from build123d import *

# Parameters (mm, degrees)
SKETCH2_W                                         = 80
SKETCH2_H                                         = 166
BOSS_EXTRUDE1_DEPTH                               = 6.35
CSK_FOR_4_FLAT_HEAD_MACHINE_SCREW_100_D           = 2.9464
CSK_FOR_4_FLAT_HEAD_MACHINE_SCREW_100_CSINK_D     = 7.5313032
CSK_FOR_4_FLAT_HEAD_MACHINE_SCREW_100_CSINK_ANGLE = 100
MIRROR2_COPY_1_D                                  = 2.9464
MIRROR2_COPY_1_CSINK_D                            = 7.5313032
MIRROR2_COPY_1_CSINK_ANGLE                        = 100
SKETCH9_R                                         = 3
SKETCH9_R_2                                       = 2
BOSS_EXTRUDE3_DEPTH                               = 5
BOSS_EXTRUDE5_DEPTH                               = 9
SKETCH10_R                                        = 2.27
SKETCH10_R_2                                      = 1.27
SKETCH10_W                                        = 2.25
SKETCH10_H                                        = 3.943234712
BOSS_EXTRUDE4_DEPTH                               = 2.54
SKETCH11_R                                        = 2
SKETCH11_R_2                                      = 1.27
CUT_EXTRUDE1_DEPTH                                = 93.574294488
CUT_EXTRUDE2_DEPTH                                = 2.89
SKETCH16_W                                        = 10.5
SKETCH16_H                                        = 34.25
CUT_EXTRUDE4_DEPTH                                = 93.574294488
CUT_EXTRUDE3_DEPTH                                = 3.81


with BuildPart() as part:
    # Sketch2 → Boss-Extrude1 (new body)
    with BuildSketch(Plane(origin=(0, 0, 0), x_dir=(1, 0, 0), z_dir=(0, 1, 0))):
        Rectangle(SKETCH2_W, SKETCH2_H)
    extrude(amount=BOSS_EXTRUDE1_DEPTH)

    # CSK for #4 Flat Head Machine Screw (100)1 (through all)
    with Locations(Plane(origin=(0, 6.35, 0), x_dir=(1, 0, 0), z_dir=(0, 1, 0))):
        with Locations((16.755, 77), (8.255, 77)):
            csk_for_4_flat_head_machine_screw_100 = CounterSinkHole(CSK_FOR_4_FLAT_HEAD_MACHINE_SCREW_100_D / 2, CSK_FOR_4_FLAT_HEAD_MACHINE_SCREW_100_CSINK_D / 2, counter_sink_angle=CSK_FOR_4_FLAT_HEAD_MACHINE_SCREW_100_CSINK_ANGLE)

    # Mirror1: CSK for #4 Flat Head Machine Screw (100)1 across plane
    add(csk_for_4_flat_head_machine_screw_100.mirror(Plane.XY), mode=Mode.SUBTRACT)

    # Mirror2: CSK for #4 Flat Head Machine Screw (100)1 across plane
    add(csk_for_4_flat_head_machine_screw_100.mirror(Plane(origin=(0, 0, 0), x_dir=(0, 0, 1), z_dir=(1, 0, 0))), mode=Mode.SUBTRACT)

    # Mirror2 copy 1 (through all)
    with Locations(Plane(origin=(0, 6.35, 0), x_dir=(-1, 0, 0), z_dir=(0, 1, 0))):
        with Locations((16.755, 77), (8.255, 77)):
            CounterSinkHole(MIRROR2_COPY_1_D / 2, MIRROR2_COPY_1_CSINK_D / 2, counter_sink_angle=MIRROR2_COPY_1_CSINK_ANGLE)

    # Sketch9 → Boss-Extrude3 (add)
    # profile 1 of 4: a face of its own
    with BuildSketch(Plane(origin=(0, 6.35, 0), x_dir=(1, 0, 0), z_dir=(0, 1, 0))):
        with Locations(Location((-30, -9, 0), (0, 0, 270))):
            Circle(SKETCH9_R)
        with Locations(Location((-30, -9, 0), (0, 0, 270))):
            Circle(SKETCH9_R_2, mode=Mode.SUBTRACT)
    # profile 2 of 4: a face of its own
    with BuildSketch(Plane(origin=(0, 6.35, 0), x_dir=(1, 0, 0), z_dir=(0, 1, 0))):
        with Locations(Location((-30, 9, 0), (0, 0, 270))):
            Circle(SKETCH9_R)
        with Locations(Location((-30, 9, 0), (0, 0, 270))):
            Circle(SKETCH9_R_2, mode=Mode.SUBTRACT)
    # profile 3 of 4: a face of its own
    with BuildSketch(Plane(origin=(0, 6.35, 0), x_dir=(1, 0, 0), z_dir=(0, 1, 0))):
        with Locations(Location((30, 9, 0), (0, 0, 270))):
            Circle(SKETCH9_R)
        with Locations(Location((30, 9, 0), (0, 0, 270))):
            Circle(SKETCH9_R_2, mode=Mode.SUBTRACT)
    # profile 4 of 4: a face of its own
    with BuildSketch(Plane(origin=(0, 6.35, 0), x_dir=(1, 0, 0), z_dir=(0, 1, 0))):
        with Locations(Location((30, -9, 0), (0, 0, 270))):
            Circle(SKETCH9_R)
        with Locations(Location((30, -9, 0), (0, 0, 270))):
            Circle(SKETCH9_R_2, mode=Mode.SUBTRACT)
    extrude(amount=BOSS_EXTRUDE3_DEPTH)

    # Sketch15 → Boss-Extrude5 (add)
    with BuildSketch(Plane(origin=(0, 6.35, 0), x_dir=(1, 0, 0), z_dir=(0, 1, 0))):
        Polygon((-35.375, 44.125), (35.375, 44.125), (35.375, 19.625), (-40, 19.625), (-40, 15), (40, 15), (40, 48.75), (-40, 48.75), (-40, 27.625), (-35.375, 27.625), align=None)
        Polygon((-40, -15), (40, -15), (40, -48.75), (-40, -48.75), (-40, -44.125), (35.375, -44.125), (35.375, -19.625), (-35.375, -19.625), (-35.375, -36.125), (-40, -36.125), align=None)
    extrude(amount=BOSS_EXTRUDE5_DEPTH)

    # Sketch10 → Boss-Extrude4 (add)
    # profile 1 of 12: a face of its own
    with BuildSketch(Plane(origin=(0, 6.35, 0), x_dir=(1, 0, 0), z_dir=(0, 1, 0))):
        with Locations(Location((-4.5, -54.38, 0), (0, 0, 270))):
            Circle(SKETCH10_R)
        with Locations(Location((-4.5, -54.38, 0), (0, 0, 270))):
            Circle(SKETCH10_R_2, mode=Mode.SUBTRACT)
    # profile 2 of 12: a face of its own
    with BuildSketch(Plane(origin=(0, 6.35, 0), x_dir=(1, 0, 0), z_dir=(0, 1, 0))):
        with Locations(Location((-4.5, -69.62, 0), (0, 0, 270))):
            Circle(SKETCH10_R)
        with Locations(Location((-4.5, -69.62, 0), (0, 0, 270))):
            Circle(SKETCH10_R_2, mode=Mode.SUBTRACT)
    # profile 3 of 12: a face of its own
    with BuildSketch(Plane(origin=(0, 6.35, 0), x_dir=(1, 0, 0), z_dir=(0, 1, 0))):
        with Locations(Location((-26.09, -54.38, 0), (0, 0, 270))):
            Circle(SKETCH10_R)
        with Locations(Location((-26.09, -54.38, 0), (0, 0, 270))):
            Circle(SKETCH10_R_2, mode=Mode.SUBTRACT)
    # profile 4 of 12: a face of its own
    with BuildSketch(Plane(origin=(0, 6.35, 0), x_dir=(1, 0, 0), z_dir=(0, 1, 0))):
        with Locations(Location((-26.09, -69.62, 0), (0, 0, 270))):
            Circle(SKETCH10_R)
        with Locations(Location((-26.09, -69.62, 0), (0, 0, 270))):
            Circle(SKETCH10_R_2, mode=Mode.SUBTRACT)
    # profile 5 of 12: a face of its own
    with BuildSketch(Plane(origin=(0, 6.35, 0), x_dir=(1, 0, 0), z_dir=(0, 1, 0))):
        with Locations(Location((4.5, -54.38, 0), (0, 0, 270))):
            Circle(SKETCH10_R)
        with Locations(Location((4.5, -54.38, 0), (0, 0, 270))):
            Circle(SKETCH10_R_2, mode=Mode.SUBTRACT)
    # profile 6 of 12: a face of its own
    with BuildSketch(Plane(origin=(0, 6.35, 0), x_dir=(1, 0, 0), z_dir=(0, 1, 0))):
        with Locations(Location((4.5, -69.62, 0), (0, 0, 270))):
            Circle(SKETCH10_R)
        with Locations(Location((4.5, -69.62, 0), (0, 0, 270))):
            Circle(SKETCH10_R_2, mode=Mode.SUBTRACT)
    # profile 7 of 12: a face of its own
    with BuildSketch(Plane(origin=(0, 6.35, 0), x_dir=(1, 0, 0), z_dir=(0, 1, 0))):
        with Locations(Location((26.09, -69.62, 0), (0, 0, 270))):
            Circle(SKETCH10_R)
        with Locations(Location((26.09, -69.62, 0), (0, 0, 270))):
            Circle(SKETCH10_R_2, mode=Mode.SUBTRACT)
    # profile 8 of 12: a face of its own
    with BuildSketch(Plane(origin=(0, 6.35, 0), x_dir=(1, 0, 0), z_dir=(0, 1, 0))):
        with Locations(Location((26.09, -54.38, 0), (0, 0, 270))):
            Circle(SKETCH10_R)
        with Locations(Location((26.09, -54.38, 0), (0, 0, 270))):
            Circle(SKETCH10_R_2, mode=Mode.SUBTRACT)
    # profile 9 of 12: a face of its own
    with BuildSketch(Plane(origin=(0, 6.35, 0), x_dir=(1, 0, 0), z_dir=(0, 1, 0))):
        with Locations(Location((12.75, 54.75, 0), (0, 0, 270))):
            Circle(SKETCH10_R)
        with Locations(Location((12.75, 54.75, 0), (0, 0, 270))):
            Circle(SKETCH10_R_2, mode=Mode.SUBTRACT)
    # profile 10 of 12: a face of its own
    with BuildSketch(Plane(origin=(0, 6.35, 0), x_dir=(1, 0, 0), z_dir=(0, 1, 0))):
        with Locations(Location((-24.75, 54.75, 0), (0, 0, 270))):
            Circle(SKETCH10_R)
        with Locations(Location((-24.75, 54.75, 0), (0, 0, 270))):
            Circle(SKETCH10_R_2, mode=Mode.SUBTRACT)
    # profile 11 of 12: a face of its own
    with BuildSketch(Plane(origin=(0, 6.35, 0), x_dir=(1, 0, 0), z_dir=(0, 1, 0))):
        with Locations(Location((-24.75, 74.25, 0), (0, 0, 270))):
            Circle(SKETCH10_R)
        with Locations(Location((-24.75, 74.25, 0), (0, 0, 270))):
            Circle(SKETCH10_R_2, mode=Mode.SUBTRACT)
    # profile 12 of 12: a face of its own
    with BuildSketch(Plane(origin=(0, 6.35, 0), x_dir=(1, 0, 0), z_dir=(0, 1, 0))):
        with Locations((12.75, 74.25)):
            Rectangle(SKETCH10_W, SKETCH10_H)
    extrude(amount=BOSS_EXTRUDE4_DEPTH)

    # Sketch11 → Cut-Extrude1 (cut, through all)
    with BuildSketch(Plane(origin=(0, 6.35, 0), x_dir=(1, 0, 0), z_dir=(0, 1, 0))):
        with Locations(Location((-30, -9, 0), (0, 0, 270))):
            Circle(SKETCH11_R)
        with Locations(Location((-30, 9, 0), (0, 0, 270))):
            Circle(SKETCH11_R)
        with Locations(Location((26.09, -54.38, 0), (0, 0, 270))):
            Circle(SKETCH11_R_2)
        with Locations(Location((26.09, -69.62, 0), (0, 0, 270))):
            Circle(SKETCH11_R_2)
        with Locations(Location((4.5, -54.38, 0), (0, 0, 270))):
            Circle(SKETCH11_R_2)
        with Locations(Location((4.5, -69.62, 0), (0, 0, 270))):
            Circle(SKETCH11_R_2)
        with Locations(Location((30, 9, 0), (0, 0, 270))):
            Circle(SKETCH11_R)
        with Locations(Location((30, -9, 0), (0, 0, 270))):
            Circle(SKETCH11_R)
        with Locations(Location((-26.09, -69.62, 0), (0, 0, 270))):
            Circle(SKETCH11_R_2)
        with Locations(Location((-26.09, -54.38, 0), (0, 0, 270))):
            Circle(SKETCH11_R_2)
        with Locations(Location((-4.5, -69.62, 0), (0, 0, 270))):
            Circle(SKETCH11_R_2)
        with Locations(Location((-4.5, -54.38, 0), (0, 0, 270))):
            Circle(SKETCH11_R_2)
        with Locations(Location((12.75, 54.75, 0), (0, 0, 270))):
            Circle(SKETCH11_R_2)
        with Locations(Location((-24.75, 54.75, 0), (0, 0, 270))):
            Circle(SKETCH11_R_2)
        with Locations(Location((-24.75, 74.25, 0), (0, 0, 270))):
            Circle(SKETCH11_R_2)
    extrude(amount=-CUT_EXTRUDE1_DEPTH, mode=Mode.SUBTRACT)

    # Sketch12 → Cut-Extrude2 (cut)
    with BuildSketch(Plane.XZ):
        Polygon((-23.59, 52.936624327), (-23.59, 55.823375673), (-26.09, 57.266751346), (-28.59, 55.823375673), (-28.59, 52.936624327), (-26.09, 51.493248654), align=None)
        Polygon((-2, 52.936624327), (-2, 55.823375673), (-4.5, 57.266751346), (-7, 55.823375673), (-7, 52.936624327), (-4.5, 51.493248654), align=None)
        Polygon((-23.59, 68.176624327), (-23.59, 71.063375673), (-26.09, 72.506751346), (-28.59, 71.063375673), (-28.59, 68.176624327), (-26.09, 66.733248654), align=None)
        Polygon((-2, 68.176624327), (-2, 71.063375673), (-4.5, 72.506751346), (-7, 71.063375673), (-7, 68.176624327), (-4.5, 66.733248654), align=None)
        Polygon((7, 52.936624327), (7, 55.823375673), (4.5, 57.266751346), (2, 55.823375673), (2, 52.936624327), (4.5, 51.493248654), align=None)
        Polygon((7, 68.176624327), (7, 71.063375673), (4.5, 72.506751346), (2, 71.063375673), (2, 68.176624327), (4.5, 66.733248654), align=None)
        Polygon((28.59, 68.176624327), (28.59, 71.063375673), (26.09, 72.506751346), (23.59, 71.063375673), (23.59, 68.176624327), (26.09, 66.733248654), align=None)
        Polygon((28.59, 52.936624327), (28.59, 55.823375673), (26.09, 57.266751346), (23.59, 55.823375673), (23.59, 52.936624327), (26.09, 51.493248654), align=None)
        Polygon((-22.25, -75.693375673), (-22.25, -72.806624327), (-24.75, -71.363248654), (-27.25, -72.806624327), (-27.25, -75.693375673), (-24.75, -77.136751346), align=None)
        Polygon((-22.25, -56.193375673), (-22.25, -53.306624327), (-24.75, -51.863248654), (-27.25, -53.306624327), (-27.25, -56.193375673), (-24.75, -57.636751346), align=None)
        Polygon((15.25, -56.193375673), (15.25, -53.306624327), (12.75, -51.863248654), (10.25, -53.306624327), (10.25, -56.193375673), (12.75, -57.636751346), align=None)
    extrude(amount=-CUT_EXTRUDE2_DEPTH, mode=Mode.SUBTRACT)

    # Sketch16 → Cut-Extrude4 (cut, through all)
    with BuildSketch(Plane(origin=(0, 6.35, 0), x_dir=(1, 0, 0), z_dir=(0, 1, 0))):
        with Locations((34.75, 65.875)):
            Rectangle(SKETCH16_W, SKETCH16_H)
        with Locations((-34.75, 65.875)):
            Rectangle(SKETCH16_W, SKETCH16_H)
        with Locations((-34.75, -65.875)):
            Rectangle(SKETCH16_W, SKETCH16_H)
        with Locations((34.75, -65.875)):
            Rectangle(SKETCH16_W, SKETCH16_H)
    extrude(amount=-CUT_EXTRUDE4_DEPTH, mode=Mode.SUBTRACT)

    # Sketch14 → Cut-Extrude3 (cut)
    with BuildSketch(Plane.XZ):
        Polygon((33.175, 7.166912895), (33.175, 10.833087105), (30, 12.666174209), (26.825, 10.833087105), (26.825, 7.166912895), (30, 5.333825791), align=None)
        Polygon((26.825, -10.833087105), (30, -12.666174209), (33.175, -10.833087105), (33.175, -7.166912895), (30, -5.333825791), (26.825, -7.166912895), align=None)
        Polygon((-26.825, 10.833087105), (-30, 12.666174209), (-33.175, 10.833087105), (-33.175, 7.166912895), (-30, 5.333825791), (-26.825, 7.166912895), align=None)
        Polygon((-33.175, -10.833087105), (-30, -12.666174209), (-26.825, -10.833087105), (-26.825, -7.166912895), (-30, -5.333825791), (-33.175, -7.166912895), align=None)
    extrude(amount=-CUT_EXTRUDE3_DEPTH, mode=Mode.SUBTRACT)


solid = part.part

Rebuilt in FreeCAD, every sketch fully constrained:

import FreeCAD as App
import Part
import Sketcher
Q = App.Units.Quantity


def add_polygon(sketch, points):
    """Adds a closed chain of lines whose ends are joined by coincident constraints."""
    first, n = sketch.GeometryCount, len(points)
    for a, b in zip(points, points[1:] + points[:1]):
        sketch.addGeometry(Part.LineSegment(App.Vector(*a, 0), App.Vector(*b, 0)), False)
    for i in range(n):
        sketch.addConstraint(Sketcher.Constraint("Coincident", first + i, 2, first + (i + 1) % n, 1))

doc = App.newDocument("Part")
body = doc.addObject("PartDesign::Body", "Body")

# Sketch on XZ plane
sketch1 = body.newObject("Sketcher::SketchObject", "Sketch")
sketch1.AttachmentSupport = (doc.getObject("XZ_Plane"), [""])
sketch1.MapMode = "FlatFace"
add_polygon(sketch1, [(-40, -83), (-40, 83), (40, 83), (40, -83)])  # lines 0-3
sketch1.addConstraint([
    Sketcher.Constraint("Vertical", 0),
    Sketcher.Constraint("Horizontal", 1),
    Sketcher.Constraint("Vertical", 2),
    Sketcher.Constraint("Horizontal", 3),
    Sketcher.Constraint("Symmetric", 0, 2, 2, 2, -1, 1),
    Sketcher.Constraint("DistanceX", 1, 1, 1, 2, Q("80 mm")),
    Sketcher.Constraint("DistanceY", 0, 1, 0, 2, Q("166 mm")),
])
pad1 = body.newObject("PartDesign::Pad", "Pad")
pad1.Profile = sketch1
pad1.Length = 6.35
pad1.Reversed = True

# Sketch on XZ plane
sketch2 = body.newObject("Sketcher::SketchObject", "Sketch001")
sketch2.AttachmentSupport = (doc.getObject("XZ_Plane"), [""])
sketch2.MapMode = "FlatFace"
sketch2.AttachmentOffset = App.Placement(App.Vector(0, 0, -6.35), App.Rotation())
sketch2.addGeometry([
    Part.Circle(App.Vector(16.8, -77, 0), App.Vector(0, 0, 1), 1.5),
    Part.Circle(App.Vector(8.3, -77, 0), App.Vector(0, 0, 1), 1.5),
], False)
sketch2.addConstraint([
    Sketcher.Constraint("Equal", 0, 1),
    Sketcher.Constraint("Horizontal", 0, 3, 1, 3),
    Sketcher.Constraint("DistanceY", 0, 3, -1, 1, Q("77 mm")),
    Sketcher.Constraint("Diameter", 0, Q("2.9464 mm")),
    Sketcher.Constraint("DistanceX", 1, 3, 0, 3, Q("8.5 mm")),
    Sketcher.Constraint("DistanceX", -1, 1, 0, 3, Q("16.755 mm")),
])
doc.recompute()
hole = body.newObject("PartDesign::Hole", "Hole")
hole.Profile = sketch2
hole.ThreadType = "None"
hole.Diameter = 2.9464
hole.DepthType = "ThroughAll"
hole.HoleCutType = "Countersink"
hole.HoleCutDiameter = 7.531303
hole.HoleCutCountersinkAngle = 100
hole.Reversed = True
doc.recompute()

mirrored = body.newObject("PartDesign::Mirrored", "Mirrored")
mirrored.Originals = [hole]
mirrored.MirrorPlane = (doc.getObject("XY_Plane"), [""])
body.Tip = mirrored
doc.recompute()

mirrored2 = body.newObject("PartDesign::Mirrored", "Mirrored001")
mirrored2.Originals = [hole]
mirrored2.MirrorPlane = (doc.getObject("YZ_Plane"), [""])
body.Tip = mirrored2

# Sketch on XZ plane
sketch3 = body.newObject("Sketcher::SketchObject", "Sketch002")
sketch3.AttachmentSupport = (doc.getObject("XZ_Plane"), [""])
sketch3.MapMode = "FlatFace"
sketch3.AttachmentOffset = App.Placement(App.Vector(0, 0, -6.35), App.Rotation())
sketch3.addGeometry([
    Part.Circle(App.Vector(-16.8, 77, 0), App.Vector(0, 0, 1), 1.5),
    Part.Circle(App.Vector(-8.3, 77, 0), App.Vector(0, 0, 1), 1.5),
], False)
sketch3.addConstraint([
    Sketcher.Constraint("Equal", 0, 1),
    Sketcher.Constraint("Horizontal", 0, 3, 1, 3),
    Sketcher.Constraint("DistanceY", -1, 1, 0, 3, Q("77 mm")),
    Sketcher.Constraint("Diameter", 0, Q("2.9464 mm")),
    Sketcher.Constraint("DistanceX", 0, 3, 1, 3, Q("8.5 mm")),
    Sketcher.Constraint("DistanceX", 0, 3, -1, 1, Q("16.755 mm")),
])
doc.recompute()
hole2 = body.newObject("PartDesign::Hole", "Hole001")
hole2.Profile = sketch3
hole2.ThreadType = "None"
hole2.Diameter = 2.9464
hole2.DepthType = "ThroughAll"
hole2.HoleCutType = "Countersink"
hole2.HoleCutDiameter = 7.531303
hole2.HoleCutCountersinkAngle = 100
hole2.Reversed = True

# Sketch on XZ plane
sketch4 = body.newObject("Sketcher::SketchObject", "Sketch003")
sketch4.AttachmentSupport = (doc.getObject("XZ_Plane"), [""])
sketch4.MapMode = "FlatFace"
sketch4.AttachmentOffset = App.Placement(App.Vector(0, 0, -6.35), App.Rotation())
sketch4.addGeometry([
    Part.Circle(App.Vector(-30, 9, 0), App.Vector(0, 0, 1), 3),  # 0
    Part.Circle(App.Vector(-30, 9, 0), App.Vector(0, 0, 1), 2),  # 1
    Part.Circle(App.Vector(-30, -9, 0), App.Vector(0, 0, 1), 3),  # 2
    Part.Circle(App.Vector(-30, -9, 0), App.Vector(0, 0, 1), 2),  # 3
    Part.Circle(App.Vector(30, -9, 0), App.Vector(0, 0, 1), 3),  # 4
    Part.Circle(App.Vector(30, -9, 0), App.Vector(0, 0, 1), 2),  # 5
    Part.Circle(App.Vector(30, 9, 0), App.Vector(0, 0, 1), 3),  # 6
    Part.Circle(App.Vector(30, 9, 0), App.Vector(0, 0, 1), 2),  # 7
], False)
sketch4.addConstraint([
    Sketcher.Constraint("Coincident", 1, 3, 0, 3),
    Sketcher.Constraint("Coincident", 3, 3, 2, 3),
    Sketcher.Constraint("Coincident", 5, 3, 4, 3),
    Sketcher.Constraint("Coincident", 7, 3, 6, 3),
    Sketcher.Constraint("Equal", 0, 2),
    Sketcher.Constraint("Equal", 1, 3),
    Sketcher.Constraint("Equal", 2, 4),
    Sketcher.Constraint("Equal", 3, 5),
    Sketcher.Constraint("Equal", 4, 6),
    Sketcher.Constraint("Equal", 5, 7),
    Sketcher.Constraint("Symmetric", 0, 3, 4, 3, -1, 1),
    Sketcher.Constraint("Symmetric", 2, 3, 6, 3, -1, 1),
    Sketcher.Constraint("Symmetric", 2, 3, 4, 3, -2),
    Sketcher.Constraint("Diameter", 0, Q("6 mm")),
    Sketcher.Constraint("Diameter", 1, Q("4 mm")),
    Sketcher.Constraint("DistanceX", 0, 3, -1, 1, Q("30 mm")),
    Sketcher.Constraint("DistanceY", -1, 1, 0, 3, Q("9 mm")),
])
pad2 = body.newObject("PartDesign::Pad", "Pad001")
pad2.Profile = sketch4
pad2.Length = 5
pad2.Reversed = True

# Sketch on XZ plane
sketch5 = body.newObject("Sketcher::SketchObject", "Sketch004")
sketch5.AttachmentSupport = (doc.getObject("XZ_Plane"), [""])
sketch5.MapMode = "FlatFace"
sketch5.AttachmentOffset = App.Placement(App.Vector(0, 0, -6.35), App.Rotation())
add_polygon(sketch5, [(-35.4, -44.1), (35.4, -44.1), (35.4, -19.6), (-40, -19.6), (-40, -15), (40, -15), (40, -48.8), (-40, -48.8), (-40, -27.6), (-35.4, -27.6)])  # lines 0-9
add_polygon(sketch5, [(40, 15), (-40, 15), (-40, 36.1), (-35.4, 36.1), (-35.4, 19.6), (35.4, 19.6), (35.4, 44.1), (-40, 44.1), (-40, 48.8), (40, 48.8)])  # lines 10-19
sketch5.addConstraint([
    Sketcher.Constraint("Horizontal", 0),
    Sketcher.Constraint("Vertical", 1),
    Sketcher.Constraint("Horizontal", 2),
    Sketcher.Constraint("Vertical", 3),
    Sketcher.Constraint("Horizontal", 4),
    Sketcher.Constraint("Vertical", 5),
    Sketcher.Constraint("Horizontal", 6),
    Sketcher.Constraint("Vertical", 7),
    Sketcher.Constraint("Horizontal", 8),
    Sketcher.Constraint("Vertical", 9),
    Sketcher.Constraint("Horizontal", 10),
    Sketcher.Constraint("Vertical", 11),
    Sketcher.Constraint("Horizontal", 12),
    Sketcher.Constraint("Vertical", 13),
    Sketcher.Constraint("Horizontal", 14),
    Sketcher.Constraint("Vertical", 15),
    Sketcher.Constraint("Horizontal", 16),
    Sketcher.Constraint("Vertical", 17),
    Sketcher.Constraint("Horizontal", 18),
    Sketcher.Constraint("Vertical", 19),
    Sketcher.Constraint("Symmetric", 4, 2, 10, 2, -1, 1),
    Sketcher.Constraint("Symmetric", 1, 2, 13, 2, -1, 1),
    Sketcher.Constraint("Symmetric", 9, 2, 15, 2, -1, 1),
    Sketcher.Constraint("Symmetric", 5, 2, 17, 2, -1, 1),
    Sketcher.Constraint("Vertical", 3, 2, 6, 2),
    Sketcher.Constraint("Vertical", 7, 2, 10, 2),
    Sketcher.Constraint("Vertical", 9, 2, 12, 2),
    Sketcher.Constraint("Vertical", 5, 2, 18, 2),
    Sketcher.Constraint("Equal", 12, 3),
    Sketcher.Constraint("Equal", 7, 11),
    Sketcher.Constraint("Equal", 9, 13),
    Sketcher.Constraint("DistanceX", 4, 1, 4, 2, Q("80 mm")),
    Sketcher.Constraint("DistanceY", 1, 1, 1, 2, Q("24.5 mm")),
    Sketcher.Constraint("DistanceY", 9, 2, 9, 1, Q("16.5 mm")),
    Sketcher.Constraint("DistanceY", 3, 2, -1, 1, Q("15 mm")),
    Sketcher.Constraint("DistanceX", 0, 1, 0, 2, Q("70.75 mm")),
])
pad3 = body.newObject("PartDesign::Pad", "Pad002")
pad3.Profile = sketch5
pad3.Length = 9
pad3.Reversed = True

# Sketch on XZ plane
sketch6 = body.newObject("Sketcher::SketchObject", "Sketch005")
sketch6.AttachmentSupport = (doc.getObject("XZ_Plane"), [""])
sketch6.MapMode = "FlatFace"
sketch6.AttachmentOffset = App.Placement(App.Vector(0, 0, -6.35), App.Rotation())
sketch6.addGeometry(Part.Circle(App.Vector(-4.5, 54.4, 0), App.Vector(0, 0, 1), 2.3), False)  # 0
sketch6.addGeometry(Part.Circle(App.Vector(-4.5, 54.4, 0), App.Vector(0, 0, 1), 1.3), False)  # 1
sketch6.addGeometry(Part.Circle(App.Vector(-4.5, 69.6, 0), App.Vector(0, 0, 1), 2.3), False)  # 2
sketch6.addGeometry(Part.Circle(App.Vector(-4.5, 69.6, 0), App.Vector(0, 0, 1), 1.3), False)  # 3
sketch6.addGeometry(Part.Circle(App.Vector(-26.1, 54.4, 0), App.Vector(0, 0, 1), 2.3), False)  # 4
sketch6.addGeometry(Part.Circle(App.Vector(-26.1, 54.4, 0), App.Vector(0, 0, 1), 1.3), False)  # 5
sketch6.addGeometry(Part.Circle(App.Vector(-26.1, 69.6, 0), App.Vector(0, 0, 1), 2.3), False)  # 6
sketch6.addGeometry(Part.Circle(App.Vector(-26.1, 69.6, 0), App.Vector(0, 0, 1), 1.3), False)  # 7
sketch6.addGeometry(Part.Circle(App.Vector(4.5, 54.4, 0), App.Vector(0, 0, 1), 2.3), False)  # 8
sketch6.addGeometry(Part.Circle(App.Vector(4.5, 54.4, 0), App.Vector(0, 0, 1), 1.3), False)  # 9
sketch6.addGeometry(Part.Circle(App.Vector(4.5, 69.6, 0), App.Vector(0, 0, 1), 2.3), False)  # 10
sketch6.addGeometry(Part.Circle(App.Vector(4.5, 69.6, 0), App.Vector(0, 0, 1), 1.3), False)  # 11
sketch6.addGeometry(Part.Circle(App.Vector(26.1, 69.6, 0), App.Vector(0, 0, 1), 2.3), False)  # 12
sketch6.addGeometry(Part.Circle(App.Vector(26.1, 69.6, 0), App.Vector(0, 0, 1), 1.3), False)  # 13
sketch6.addGeometry(Part.Circle(App.Vector(26.1, 54.4, 0), App.Vector(0, 0, 1), 2.3), False)  # 14
sketch6.addGeometry(Part.Circle(App.Vector(26.1, 54.4, 0), App.Vector(0, 0, 1), 1.3), False)  # 15
sketch6.addGeometry(Part.Circle(App.Vector(12.8, -54.8, 0), App.Vector(0, 0, 1), 2.3), False)  # 16
sketch6.addGeometry(Part.Circle(App.Vector(12.8, -54.8, 0), App.Vector(0, 0, 1), 1.3), False)  # 17
sketch6.addGeometry(Part.Circle(App.Vector(-24.8, -54.8, 0), App.Vector(0, 0, 1), 2.3), False)  # 18
sketch6.addGeometry(Part.Circle(App.Vector(-24.8, -54.8, 0), App.Vector(0, 0, 1), 1.3), False)  # 19
sketch6.addGeometry(Part.Circle(App.Vector(-24.8, -74.2, 0), App.Vector(0, 0, 1), 2.3), False)  # 20
sketch6.addGeometry(Part.Circle(App.Vector(-24.8, -74.2, 0), App.Vector(0, 0, 1), 1.3), False)  # 21
add_polygon(sketch6, [(11.6, -76.2), (11.6, -72.3), (13.9, -72.3), (13.9, -76.2)])  # lines 22-25
sketch6.addConstraint([
    Sketcher.Constraint("Vertical", 22),
    Sketcher.Constraint("Horizontal", 23),
    Sketcher.Constraint("Vertical", 24),
    Sketcher.Constraint("Horizontal", 25),
    Sketcher.Constraint("Coincident", 1, 3, 0, 3),
    Sketcher.Constraint("Coincident", 3, 3, 2, 3),
    Sketcher.Constraint("Coincident", 5, 3, 4, 3),
    Sketcher.Constraint("Coincident", 7, 3, 6, 3),
    Sketcher.Constraint("Coincident", 9, 3, 8, 3),
    Sketcher.Constraint("Coincident", 11, 3, 10, 3),
    Sketcher.Constraint("Coincident", 13, 3, 12, 3),
    Sketcher.Constraint("Coincident", 15, 3, 14, 3),
    Sketcher.Constraint("Coincident", 17, 3, 16, 3),
    Sketcher.Constraint("Coincident", 19, 3, 18, 3),
    Sketcher.Constraint("Coincident", 21, 3, 20, 3),
    Sketcher.Constraint("Equal", 0, 2),
    Sketcher.Constraint("Equal", 1, 3),
    Sketcher.Constraint("Equal", 2, 4),
    Sketcher.Constraint("Equal", 3, 5),
    Sketcher.Constraint("Equal", 4, 6),
    Sketcher.Constraint("Equal", 5, 7),
    Sketcher.Constraint("Equal", 6, 8),
    Sketcher.Constraint("Equal", 7, 9),
    Sketcher.Constraint("Equal", 8, 10),
    Sketcher.Constraint("Equal", 9, 11),
    Sketcher.Constraint("Equal", 10, 12),
    Sketcher.Constraint("Equal", 11, 13),
    Sketcher.Constraint("Equal", 12, 14),
    Sketcher.Constraint("Equal", 13, 15),
    Sketcher.Constraint("Equal", 14, 16),
    Sketcher.Constraint("Equal", 15, 17),
    Sketcher.Constraint("Equal", 16, 18),
    Sketcher.Constraint("Equal", 17, 19),
    Sketcher.Constraint("Equal", 18, 20),
    Sketcher.Constraint("Equal", 19, 21),
    Sketcher.Constraint("Symmetric", 0, 3, 8, 3, -2),
    Sketcher.Constraint("Symmetric", 2, 3, 10, 3, -2),
    Sketcher.Constraint("Symmetric", 6, 3, 12, 3, -2),
    Sketcher.Constraint("Symmetric", 4, 3, 14, 3, -2),
    Sketcher.Constraint("Horizontal", 1, 3, 4, 3),
    Sketcher.Constraint("Horizontal", 3, 3, 6, 3),
    Sketcher.Constraint("Horizontal", 17, 3, 18, 3),
    Sketcher.Constraint("Vertical", 1, 3, 2, 3),
    Sketcher.Constraint("Vertical", 5, 3, 6, 3),
    Sketcher.Constraint("Vertical", 19, 3, 20, 3),
    Sketcher.Constraint("Diameter", 0, Q("4.54 mm")),
    Sketcher.Constraint("Diameter", 1, Q("2.54 mm")),
    Sketcher.Constraint("DistanceX", 0, 3, 8, 3, Q("9 mm")),
    Sketcher.Constraint("DistanceX", 23, 1, 23, 2, Q("2.25 mm")),
    Sketcher.Constraint("DistanceX", 18, 3, 16, 3, Q("37.5 mm")),
    Sketcher.Constraint("DistanceY", 20, 3, 18, 3, Q("19.5 mm")),
    Sketcher.Constraint("DistanceY", -1, 1, 0, 3, Q("54.38 mm")),
    Sketcher.Constraint("DistanceY", -1, 1, 2, 3, Q("69.62 mm")),
    Sketcher.Constraint("DistanceX", 4, 3, -1, 1, Q("26.09 mm")),
    Sketcher.Constraint("DistanceX", -1, 1, 16, 3, Q("12.75 mm")),
    Sketcher.Constraint("DistanceY", 16, 3, -1, 1, Q("54.75 mm")),
    Sketcher.Constraint("DistanceX", -1, 1, 22, 2, Q("11.625 mm")),
    Sketcher.Constraint("DistanceY", 22, 1, 22, 2, Q("3.943235 mm")),
    Sketcher.Constraint("DistanceY", 22, 2, -1, 1, Q("72.278383 mm")),
])
pad4 = body.newObject("PartDesign::Pad", "Pad003")
pad4.Profile = sketch6
pad4.Length = 2.54
pad4.Reversed = True

# Sketch on XZ plane
sketch7 = body.newObject("Sketcher::SketchObject", "Sketch006")
sketch7.AttachmentSupport = (doc.getObject("XZ_Plane"), [""])
sketch7.MapMode = "FlatFace"
sketch7.AttachmentOffset = App.Placement(App.Vector(0, 0, -6.35), App.Rotation())
sketch7.addGeometry([
    Part.Circle(App.Vector(-30, 9, 0), App.Vector(0, 0, 1), 2),  # 0
    Part.Circle(App.Vector(-30, -9, 0), App.Vector(0, 0, 1), 2),  # 1
    Part.Circle(App.Vector(26.1, 54.4, 0), App.Vector(0, 0, 1), 1.3),  # 2
    Part.Circle(App.Vector(26.1, 69.6, 0), App.Vector(0, 0, 1), 1.3),  # 3
    Part.Circle(App.Vector(4.5, 54.4, 0), App.Vector(0, 0, 1), 1.3),  # 4
    Part.Circle(App.Vector(4.5, 69.6, 0), App.Vector(0, 0, 1), 1.3),  # 5
    Part.Circle(App.Vector(30, -9, 0), App.Vector(0, 0, 1), 2),  # 6
    Part.Circle(App.Vector(30, 9, 0), App.Vector(0, 0, 1), 2),  # 7
    Part.Circle(App.Vector(-26.1, 69.6, 0), App.Vector(0, 0, 1), 1.3),  # 8
    Part.Circle(App.Vector(-26.1, 54.4, 0), App.Vector(0, 0, 1), 1.3),  # 9
    Part.Circle(App.Vector(-4.5, 69.6, 0), App.Vector(0, 0, 1), 1.3),  # 10
    Part.Circle(App.Vector(-4.5, 54.4, 0), App.Vector(0, 0, 1), 1.3),  # 11
    Part.Circle(App.Vector(12.8, -54.8, 0), App.Vector(0, 0, 1), 1.3),  # 12
    Part.Circle(App.Vector(-24.8, -54.8, 0), App.Vector(0, 0, 1), 1.3),  # 13
    Part.Circle(App.Vector(-24.8, -74.2, 0), App.Vector(0, 0, 1), 1.3),  # 14
], False)
sketch7.addConstraint([
    Sketcher.Constraint("Equal", 0, 1),
    Sketcher.Constraint("Equal", 2, 3),
    Sketcher.Constraint("Equal", 3, 4),
    Sketcher.Constraint("Equal", 4, 5),
    Sketcher.Constraint("Equal", 1, 6),
    Sketcher.Constraint("Equal", 6, 7),
    Sketcher.Constraint("Equal", 5, 8),
    Sketcher.Constraint("Equal", 8, 9),
    Sketcher.Constraint("Equal", 9, 10),
    Sketcher.Constraint("Equal", 10, 11),
    Sketcher.Constraint("Equal", 11, 12),
    Sketcher.Constraint("Equal", 12, 13),
    Sketcher.Constraint("Equal", 13, 14),
    Sketcher.Constraint("Symmetric", 0, 3, 6, 3, -1, 1),
    Sketcher.Constraint("Symmetric", 1, 3, 7, 3, -1, 1),
    Sketcher.Constraint("Symmetric", 1, 3, 6, 3, -2),
    Sketcher.Constraint("Symmetric", 3, 3, 8, 3, -2),
    Sketcher.Constraint("Symmetric", 2, 3, 9, 3, -2),
    Sketcher.Constraint("Symmetric", 5, 3, 10, 3, -2),
    Sketcher.Constraint("Symmetric", 4, 3, 11, 3, -2),
    Sketcher.Constraint("Horizontal", 2, 3, 4, 3),
    Sketcher.Constraint("Horizontal", 3, 3, 5, 3),
    Sketcher.Constraint("Horizontal", 12, 3, 13, 3),
    Sketcher.Constraint("Vertical", 2, 3, 3, 3),
    Sketcher.Constraint("Vertical", 4, 3, 5, 3),
    Sketcher.Constraint("Vertical", 13, 3, 14, 3),
    Sketcher.Constraint("Diameter", 0, Q("4 mm")),
    Sketcher.Constraint("Diameter", 2, Q("2.54 mm")),
    Sketcher.Constraint("DistanceX", 0, 3, -1, 1, Q("30 mm")),
    Sketcher.Constraint("DistanceY", -1, 1, 0, 3, Q("9 mm")),
    Sketcher.Constraint("DistanceX", 10, 3, 5, 3, Q("9 mm")),
    Sketcher.Constraint("DistanceX", 13, 3, 12, 3, Q("37.5 mm")),
    Sketcher.Constraint("DistanceY", 14, 3, 13, 3, Q("19.5 mm")),
    Sketcher.Constraint("DistanceX", -1, 1, 2, 3, Q("26.09 mm")),
    Sketcher.Constraint("DistanceY", -1, 1, 2, 3, Q("54.38 mm")),
    Sketcher.Constraint("DistanceY", -1, 1, 3, 3, Q("69.62 mm")),
    Sketcher.Constraint("DistanceX", -1, 1, 12, 3, Q("12.75 mm")),
    Sketcher.Constraint("DistanceY", 12, 3, -1, 1, Q("54.75 mm")),
])
pocket1 = body.newObject("PartDesign::Pocket", "Pocket")
pocket1.Profile = sketch7
pocket1.Type = "ThroughAll"
pocket1.Reversed = True

# Sketch on XZ plane
sketch8 = body.newObject("Sketcher::SketchObject", "Sketch007")
sketch8.AttachmentSupport = (doc.getObject("XZ_Plane"), [""])
sketch8.MapMode = "FlatFace"
add_polygon(sketch8, [(-23.6, 52.9), (-23.6, 55.8), (-26.1, 57.3), (-28.6, 55.8), (-28.6, 52.9), (-26.1, 51.5)])  # lines 0-5
add_polygon(sketch8, [(-2, 52.9), (-2, 55.8), (-4.5, 57.3), (-7, 55.8), (-7, 52.9), (-4.5, 51.5)])  # lines 6-11
add_polygon(sketch8, [(-23.6, 68.2), (-23.6, 71.1), (-26.1, 72.5), (-28.6, 71.1), (-28.6, 68.2), (-26.1, 66.7)])  # lines 12-17
add_polygon(sketch8, [(-2, 68.2), (-2, 71.1), (-4.5, 72.5), (-7, 71.1), (-7, 68.2), (-4.5, 66.7)])  # lines 18-23
add_polygon(sketch8, [(7, 52.9), (7, 55.8), (4.5, 57.3), (2, 55.8), (2, 52.9), (4.5, 51.5)])  # lines 24-29
add_polygon(sketch8, [(7, 68.2), (7, 71.1), (4.5, 72.5), (2, 71.1), (2, 68.2), (4.5, 66.7)])  # lines 30-35
add_polygon(sketch8, [(28.6, 68.2), (28.6, 71.1), (26.1, 72.5), (23.6, 71.1), (23.6, 68.2), (26.1, 66.7)])  # lines 36-41
add_polygon(sketch8, [(28.6, 52.9), (28.6, 55.8), (26.1, 57.3), (23.6, 55.8), (23.6, 52.9), (26.1, 51.5)])  # lines 42-47
add_polygon(sketch8, [(-22.2, -75.7), (-22.2, -72.8), (-24.8, -71.4), (-27.2, -72.8), (-27.2, -75.7), (-24.8, -77.1)])  # lines 48-53
add_polygon(sketch8, [(-22.2, -56.2), (-22.2, -53.3), (-24.8, -51.9), (-27.2, -53.3), (-27.2, -56.2), (-24.8, -57.6)])  # lines 54-59
add_polygon(sketch8, [(15.2, -56.2), (15.2, -53.3), (12.8, -51.9), (10.2, -53.3), (10.2, -56.2), (12.8, -57.6)])  # lines 60-65
sketch8.addConstraint([
    Sketcher.Constraint("Vertical", 0),
    Sketcher.Constraint("Vertical", 3),
    Sketcher.Constraint("Vertical", 6),
    Sketcher.Constraint("Vertical", 9),
    Sketcher.Constraint("Vertical", 12),
    Sketcher.Constraint("Vertical", 15),
    Sketcher.Constraint("Vertical", 18),
    Sketcher.Constraint("Vertical", 21),
    Sketcher.Constraint("Vertical", 24),
    Sketcher.Constraint("Vertical", 27),
    Sketcher.Constraint("Vertical", 30),
    Sketcher.Constraint("Vertical", 33),
    Sketcher.Constraint("Vertical", 36),
    Sketcher.Constraint("Vertical", 39),
    Sketcher.Constraint("Vertical", 42),
    Sketcher.Constraint("Vertical", 45),
    Sketcher.Constraint("Vertical", 48),
    Sketcher.Constraint("Vertical", 51),
    Sketcher.Constraint("Vertical", 54),
    Sketcher.Constraint("Vertical", 57),
    Sketcher.Constraint("Vertical", 60),
    Sketcher.Constraint("Vertical", 63),
    Sketcher.Constraint("Symmetric", 8, 2, 24, 2, -2),
    Sketcher.Constraint("Symmetric", 7, 2, 25, 2, -2),
    Sketcher.Constraint("Symmetric", 6, 2, 26, 2, -2),
    Sketcher.Constraint("Symmetric", 10, 2, 28, 2, -2),
    Sketcher.Constraint("Symmetric", 20, 2, 30, 2, -2),
    Sketcher.Constraint("Symmetric", 19, 2, 31, 2, -2),
    Sketcher.Constraint("Symmetric", 18, 2, 32, 2, -2),
    Sketcher.Constraint("Symmetric", 22, 2, 34, 2, -2),
    Sketcher.Constraint("Symmetric", 14, 2, 36, 2, -2),
    Sketcher.Constraint("Symmetric", 13, 2, 37, 2, -2),
    Sketcher.Constraint("Symmetric", 12, 2, 38, 2, -2),
    Sketcher.Constraint("Symmetric", 16, 2, 40, 2, -2),
    Sketcher.Constraint("Symmetric", 2, 2, 42, 2, -2),
    Sketcher.Constraint("Symmetric", 1, 2, 43, 2, -2),
    Sketcher.Constraint("Symmetric", 0, 2, 44, 2, -2),
    Sketcher.Constraint("Symmetric", 4, 2, 46, 2, -2),
    Sketcher.Constraint("Parallel", 1, 4),
    Sketcher.Constraint("Parallel", 2, 5),
    Sketcher.Constraint("Parallel", 4, 7),
    Sketcher.Constraint("Parallel", 5, 8),
    Sketcher.Constraint("Parallel", 7, 10),
    Sketcher.Constraint("Parallel", 8, 11),
    Sketcher.Constraint("Parallel", 10, 13),
    Sketcher.Constraint("Parallel", 11, 14),
    Sketcher.Constraint("Parallel", 13, 16),
    Sketcher.Constraint("Parallel", 14, 17),
    Sketcher.Constraint("Parallel", 16, 19),
    Sketcher.Constraint("Parallel", 17, 20),
    Sketcher.Constraint("Parallel", 19, 22),
    Sketcher.Constraint("Parallel", 20, 23),
    Sketcher.Constraint("Parallel", 22, 25),
    Sketcher.Constraint("Parallel", 25, 28),
    Sketcher.Constraint("Parallel", 26, 29),
    Sketcher.Constraint("Parallel", 31, 34),
    Sketcher.Constraint("Parallel", 32, 35),
    Sketcher.Constraint("Parallel", 37, 40),
    Sketcher.Constraint("Parallel", 38, 41),
    Sketcher.Constraint("Parallel", 43, 46),
    Sketcher.Constraint("Parallel", 44, 47),
    Sketcher.Constraint("Parallel", 46, 49),
    Sketcher.Constraint("Parallel", 47, 50),
    Sketcher.Constraint("Parallel", 49, 52),
    Sketcher.Constraint("Parallel", 50, 53),
    Sketcher.Constraint("Parallel", 52, 55),
    Sketcher.Constraint("Parallel", 53, 56),
    Sketcher.Constraint("Parallel", 55, 58),
    Sketcher.Constraint("Parallel", 56, 59),
    Sketcher.Constraint("Parallel", 58, 61),
    Sketcher.Constraint("Parallel", 59, 62),
    Sketcher.Constraint("Parallel", 61, 64),
    Sketcher.Constraint("Parallel", 62, 65),
    Sketcher.Constraint("Horizontal", 0, 2, 2, 2),
    Sketcher.Constraint("Horizontal", 3, 2, 5, 2),
    Sketcher.Constraint("Horizontal", 2, 2, 6, 2),
    Sketcher.Constraint("Horizontal", 1, 2, 7, 2),
    Sketcher.Constraint("Horizontal", 6, 2, 8, 2),
    Sketcher.Constraint("Horizontal", 5, 2, 9, 2),
    Sketcher.Constraint("Horizontal", 4, 2, 10, 2),
    Sketcher.Constraint("Horizontal", 12, 2, 14, 2),
    Sketcher.Constraint("Horizontal", 15, 2, 17, 2),
    Sketcher.Constraint("Horizontal", 14, 2, 18, 2),
    Sketcher.Constraint("Horizontal", 13, 2, 19, 2),
    Sketcher.Constraint("Horizontal", 18, 2, 20, 2),
    Sketcher.Constraint("Horizontal", 17, 2, 21, 2),
    Sketcher.Constraint("Horizontal", 16, 2, 22, 2),
    Sketcher.Constraint("Horizontal", 48, 2, 50, 2),
    Sketcher.Constraint("Horizontal", 51, 2, 53, 2),
    Sketcher.Constraint("Horizontal", 54, 2, 56, 2),
    Sketcher.Constraint("Horizontal", 57, 2, 59, 2),
    Sketcher.Constraint("Horizontal", 56, 2, 60, 2),
    Sketcher.Constraint("Horizontal", 55, 2, 61, 2),
    Sketcher.Constraint("Horizontal", 60, 2, 62, 2),
    Sketcher.Constraint("Horizontal", 59, 2, 63, 2),
    Sketcher.Constraint("Horizontal", 58, 2, 64, 2),
    Sketcher.Constraint("Vertical", 5, 2, 12, 2),
    Sketcher.Constraint("Vertical", 4, 2, 13, 2),
    Sketcher.Constraint("Vertical", 11, 2, 18, 2),
    Sketcher.Constraint("Vertical", 53, 2, 54, 2),
    Sketcher.Constraint("Vertical", 52, 2, 55, 2),
    Sketcher.Constraint("Equal", 9, 12),
    Sketcher.Constraint("Equal", 45, 48),
    Sketcher.Constraint("Equal", 51, 54),
    Sketcher.Constraint("Equal", 47, 49),
    Sketcher.Constraint("Angle", 1, Q("150 deg")),
    Sketcher.Constraint("DistanceX", 6, 2, -1, 1, Q("2 mm")),
    Sketcher.Constraint("DistanceX", 8, 2, -1, 1, Q("7 mm")),
    Sketcher.Constraint("DistanceX", 0, 2, -1, 1, Q("23.59 mm")),
    Sketcher.Constraint("DistanceX", 48, 2, -1, 1, Q("22.25 mm")),
    Sketcher.Constraint("DistanceX", -1, 1, 60, 2, Q("15.25 mm")),
    Sketcher.Constraint("DistanceY", 0, 1, 0, 2, Q("2.886751 mm")),
    Sketcher.Constraint("DistanceY", -1, 1, 1, 2, Q("57.266751 mm")),
    Sketcher.Constraint("DistanceY", -1, 1, 13, 2, Q("72.506751 mm")),
    Sketcher.Constraint("DistanceY", 49, 2, -1, 1, Q("71.363249 mm")),
    Sketcher.Constraint("DistanceY", 55, 2, -1, 1, Q("51.863249 mm")),
])
pocket2 = body.newObject("PartDesign::Pocket", "Pocket001")
pocket2.Profile = sketch8
pocket2.Length = 2.89

# Sketch on XZ plane
sketch9 = body.newObject("Sketcher::SketchObject", "Sketch008")
sketch9.AttachmentSupport = (doc.getObject("XZ_Plane"), [""])
sketch9.MapMode = "FlatFace"
sketch9.AttachmentOffset = App.Placement(App.Vector(0, 0, -6.35), App.Rotation())
add_polygon(sketch9, [(30, -83), (30, -49), (40, -49), (40, -83)])  # lines 0-3
add_polygon(sketch9, [(-40, -83), (-40, -49), (-30, -49), (-30, -83)])  # lines 4-7
add_polygon(sketch9, [(-40, 49), (-40, 83), (-30, 83), (-30, 49)])  # lines 8-11
add_polygon(sketch9, [(30, 49), (30, 83), (40, 83), (40, 49)])  # lines 12-15
sketch9.addConstraint([
    Sketcher.Constraint("Vertical", 0),
    Sketcher.Constraint("Horizontal", 1),
    Sketcher.Constraint("Vertical", 2),
    Sketcher.Constraint("Horizontal", 3),
    Sketcher.Constraint("Vertical", 4),
    Sketcher.Constraint("Horizontal", 5),
    Sketcher.Constraint("Vertical", 6),
    Sketcher.Constraint("Horizontal", 7),
    Sketcher.Constraint("Vertical", 8),
    Sketcher.Constraint("Horizontal", 9),
    Sketcher.Constraint("Vertical", 10),
    Sketcher.Constraint("Horizontal", 11),
    Sketcher.Constraint("Vertical", 12),
    Sketcher.Constraint("Horizontal", 13),
    Sketcher.Constraint("Vertical", 14),
    Sketcher.Constraint("Horizontal", 15),
    Sketcher.Constraint("Symmetric", 2, 2, 8, 2, -1, 1),
    Sketcher.Constraint("Symmetric", 0, 2, 10, 2, -1, 1),
    Sketcher.Constraint("Symmetric", 6, 2, 12, 2, -1, 1),
    Sketcher.Constraint("Symmetric", 4, 2, 14, 2, -1, 1),
    Sketcher.Constraint("Symmetric", 1, 2, 4, 2, -2),
    Sketcher.Constraint("Symmetric", 3, 2, 6, 2, -2),
    Sketcher.Constraint("DistanceX", 1, 1, 1, 2, Q("10.5 mm")),
    Sketcher.Constraint("DistanceX", -1, 1, 1, 2, Q("40 mm")),
    Sketcher.Constraint("DistanceY", 2, 2, -1, 1, Q("83 mm")),
    Sketcher.Constraint("DistanceY", 0, 1, 0, 2, Q("34.25 mm")),
])
pocket3 = body.newObject("PartDesign::Pocket", "Pocket002")
pocket3.Profile = sketch9
pocket3.Type = "ThroughAll"
pocket3.Reversed = True

# Sketch on XZ plane
sketch10 = body.newObject("Sketcher::SketchObject", "Sketch009")
sketch10.AttachmentSupport = (doc.getObject("XZ_Plane"), [""])
sketch10.MapMode = "FlatFace"
add_polygon(sketch10, [(33.2, 7.2), (33.2, 10.8), (30, 12.7), (26.8, 10.8), (26.8, 7.2), (30, 5.3)])  # lines 0-5
add_polygon(sketch10, [(26.8, -10.8), (30, -12.7), (33.2, -10.8), (33.2, -7.2), (30, -5.3), (26.8, -7.2)])  # lines 6-11
add_polygon(sketch10, [(-26.8, 10.8), (-30, 12.7), (-33.2, 10.8), (-33.2, 7.2), (-30, 5.3), (-26.8, 7.2)])  # lines 12-17
add_polygon(sketch10, [(-33.2, -10.8), (-30, -12.7), (-26.8, -10.8), (-26.8, -7.2), (-30, -5.3), (-33.2, -7.2)])  # lines 18-23
sketch10.addConstraint([
    Sketcher.Constraint("Vertical", 0),
    Sketcher.Constraint("Vertical", 3),
    Sketcher.Constraint("Vertical", 8),
    Sketcher.Constraint("Vertical", 11),
    Sketcher.Constraint("Vertical", 14),
    Sketcher.Constraint("Vertical", 17),
    Sketcher.Constraint("Vertical", 20),
    Sketcher.Constraint("Vertical", 23),
    Sketcher.Constraint("Symmetric", 6, 2, 12, 2, -1, 1),
    Sketcher.Constraint("Symmetric", 7, 2, 13, 2, -1, 1),
    Sketcher.Constraint("Symmetric", 9, 2, 15, 2, -1, 1),
    Sketcher.Constraint("Symmetric", 10, 2, 16, 2, -1, 1),
    Sketcher.Constraint("Symmetric", 1, 2, 18, 2, -1, 1),
    Sketcher.Constraint("Symmetric", 2, 2, 19, 2, -1, 1),
    Sketcher.Constraint("Symmetric", 4, 2, 21, 2, -1, 1),
    Sketcher.Constraint("Symmetric", 5, 2, 22, 2, -1, 1),
    Sketcher.Constraint("Symmetric", 1, 2, 12, 2, -2),
    Sketcher.Constraint("Symmetric", 0, 2, 13, 2, -2),
    Sketcher.Constraint("Symmetric", 4, 2, 15, 2, -2),
    Sketcher.Constraint("Symmetric", 3, 2, 16, 2, -2),
    Sketcher.Constraint("Parallel", 1, 4),
    Sketcher.Constraint("Parallel", 2, 5),
    Sketcher.Constraint("Parallel", 4, 6),
    Sketcher.Constraint("Parallel", 5, 7),
    Sketcher.Constraint("Parallel", 6, 9),
    Sketcher.Constraint("Parallel", 9, 12),
    Sketcher.Constraint("Parallel", 12, 15),
    Sketcher.Constraint("Parallel", 15, 18),
    Sketcher.Constraint("Parallel", 18, 21),
    Sketcher.Constraint("Horizontal", 0, 2, 2, 2),
    Sketcher.Constraint("Horizontal", 3, 2, 5, 2),
    Sketcher.Constraint("Angle", 1, Q("150 deg")),
    Sketcher.Constraint("DistanceX", -1, 1, 1, 2, Q("30 mm")),
    Sketcher.Constraint("DistanceY", 6, 2, 4, 2, Q("18 mm")),
    Sketcher.Constraint("DistanceX", 2, 2, 0, 2, Q("6.35 mm")),
    Sketcher.Constraint("DistanceY", 0, 1, 0, 2, Q("3.666174 mm")),
])
pocket4 = body.newObject("PartDesign::Pocket", "Pocket003")
pocket4.Profile = sketch10
pocket4.Length = 3.81

doc.recompute()
